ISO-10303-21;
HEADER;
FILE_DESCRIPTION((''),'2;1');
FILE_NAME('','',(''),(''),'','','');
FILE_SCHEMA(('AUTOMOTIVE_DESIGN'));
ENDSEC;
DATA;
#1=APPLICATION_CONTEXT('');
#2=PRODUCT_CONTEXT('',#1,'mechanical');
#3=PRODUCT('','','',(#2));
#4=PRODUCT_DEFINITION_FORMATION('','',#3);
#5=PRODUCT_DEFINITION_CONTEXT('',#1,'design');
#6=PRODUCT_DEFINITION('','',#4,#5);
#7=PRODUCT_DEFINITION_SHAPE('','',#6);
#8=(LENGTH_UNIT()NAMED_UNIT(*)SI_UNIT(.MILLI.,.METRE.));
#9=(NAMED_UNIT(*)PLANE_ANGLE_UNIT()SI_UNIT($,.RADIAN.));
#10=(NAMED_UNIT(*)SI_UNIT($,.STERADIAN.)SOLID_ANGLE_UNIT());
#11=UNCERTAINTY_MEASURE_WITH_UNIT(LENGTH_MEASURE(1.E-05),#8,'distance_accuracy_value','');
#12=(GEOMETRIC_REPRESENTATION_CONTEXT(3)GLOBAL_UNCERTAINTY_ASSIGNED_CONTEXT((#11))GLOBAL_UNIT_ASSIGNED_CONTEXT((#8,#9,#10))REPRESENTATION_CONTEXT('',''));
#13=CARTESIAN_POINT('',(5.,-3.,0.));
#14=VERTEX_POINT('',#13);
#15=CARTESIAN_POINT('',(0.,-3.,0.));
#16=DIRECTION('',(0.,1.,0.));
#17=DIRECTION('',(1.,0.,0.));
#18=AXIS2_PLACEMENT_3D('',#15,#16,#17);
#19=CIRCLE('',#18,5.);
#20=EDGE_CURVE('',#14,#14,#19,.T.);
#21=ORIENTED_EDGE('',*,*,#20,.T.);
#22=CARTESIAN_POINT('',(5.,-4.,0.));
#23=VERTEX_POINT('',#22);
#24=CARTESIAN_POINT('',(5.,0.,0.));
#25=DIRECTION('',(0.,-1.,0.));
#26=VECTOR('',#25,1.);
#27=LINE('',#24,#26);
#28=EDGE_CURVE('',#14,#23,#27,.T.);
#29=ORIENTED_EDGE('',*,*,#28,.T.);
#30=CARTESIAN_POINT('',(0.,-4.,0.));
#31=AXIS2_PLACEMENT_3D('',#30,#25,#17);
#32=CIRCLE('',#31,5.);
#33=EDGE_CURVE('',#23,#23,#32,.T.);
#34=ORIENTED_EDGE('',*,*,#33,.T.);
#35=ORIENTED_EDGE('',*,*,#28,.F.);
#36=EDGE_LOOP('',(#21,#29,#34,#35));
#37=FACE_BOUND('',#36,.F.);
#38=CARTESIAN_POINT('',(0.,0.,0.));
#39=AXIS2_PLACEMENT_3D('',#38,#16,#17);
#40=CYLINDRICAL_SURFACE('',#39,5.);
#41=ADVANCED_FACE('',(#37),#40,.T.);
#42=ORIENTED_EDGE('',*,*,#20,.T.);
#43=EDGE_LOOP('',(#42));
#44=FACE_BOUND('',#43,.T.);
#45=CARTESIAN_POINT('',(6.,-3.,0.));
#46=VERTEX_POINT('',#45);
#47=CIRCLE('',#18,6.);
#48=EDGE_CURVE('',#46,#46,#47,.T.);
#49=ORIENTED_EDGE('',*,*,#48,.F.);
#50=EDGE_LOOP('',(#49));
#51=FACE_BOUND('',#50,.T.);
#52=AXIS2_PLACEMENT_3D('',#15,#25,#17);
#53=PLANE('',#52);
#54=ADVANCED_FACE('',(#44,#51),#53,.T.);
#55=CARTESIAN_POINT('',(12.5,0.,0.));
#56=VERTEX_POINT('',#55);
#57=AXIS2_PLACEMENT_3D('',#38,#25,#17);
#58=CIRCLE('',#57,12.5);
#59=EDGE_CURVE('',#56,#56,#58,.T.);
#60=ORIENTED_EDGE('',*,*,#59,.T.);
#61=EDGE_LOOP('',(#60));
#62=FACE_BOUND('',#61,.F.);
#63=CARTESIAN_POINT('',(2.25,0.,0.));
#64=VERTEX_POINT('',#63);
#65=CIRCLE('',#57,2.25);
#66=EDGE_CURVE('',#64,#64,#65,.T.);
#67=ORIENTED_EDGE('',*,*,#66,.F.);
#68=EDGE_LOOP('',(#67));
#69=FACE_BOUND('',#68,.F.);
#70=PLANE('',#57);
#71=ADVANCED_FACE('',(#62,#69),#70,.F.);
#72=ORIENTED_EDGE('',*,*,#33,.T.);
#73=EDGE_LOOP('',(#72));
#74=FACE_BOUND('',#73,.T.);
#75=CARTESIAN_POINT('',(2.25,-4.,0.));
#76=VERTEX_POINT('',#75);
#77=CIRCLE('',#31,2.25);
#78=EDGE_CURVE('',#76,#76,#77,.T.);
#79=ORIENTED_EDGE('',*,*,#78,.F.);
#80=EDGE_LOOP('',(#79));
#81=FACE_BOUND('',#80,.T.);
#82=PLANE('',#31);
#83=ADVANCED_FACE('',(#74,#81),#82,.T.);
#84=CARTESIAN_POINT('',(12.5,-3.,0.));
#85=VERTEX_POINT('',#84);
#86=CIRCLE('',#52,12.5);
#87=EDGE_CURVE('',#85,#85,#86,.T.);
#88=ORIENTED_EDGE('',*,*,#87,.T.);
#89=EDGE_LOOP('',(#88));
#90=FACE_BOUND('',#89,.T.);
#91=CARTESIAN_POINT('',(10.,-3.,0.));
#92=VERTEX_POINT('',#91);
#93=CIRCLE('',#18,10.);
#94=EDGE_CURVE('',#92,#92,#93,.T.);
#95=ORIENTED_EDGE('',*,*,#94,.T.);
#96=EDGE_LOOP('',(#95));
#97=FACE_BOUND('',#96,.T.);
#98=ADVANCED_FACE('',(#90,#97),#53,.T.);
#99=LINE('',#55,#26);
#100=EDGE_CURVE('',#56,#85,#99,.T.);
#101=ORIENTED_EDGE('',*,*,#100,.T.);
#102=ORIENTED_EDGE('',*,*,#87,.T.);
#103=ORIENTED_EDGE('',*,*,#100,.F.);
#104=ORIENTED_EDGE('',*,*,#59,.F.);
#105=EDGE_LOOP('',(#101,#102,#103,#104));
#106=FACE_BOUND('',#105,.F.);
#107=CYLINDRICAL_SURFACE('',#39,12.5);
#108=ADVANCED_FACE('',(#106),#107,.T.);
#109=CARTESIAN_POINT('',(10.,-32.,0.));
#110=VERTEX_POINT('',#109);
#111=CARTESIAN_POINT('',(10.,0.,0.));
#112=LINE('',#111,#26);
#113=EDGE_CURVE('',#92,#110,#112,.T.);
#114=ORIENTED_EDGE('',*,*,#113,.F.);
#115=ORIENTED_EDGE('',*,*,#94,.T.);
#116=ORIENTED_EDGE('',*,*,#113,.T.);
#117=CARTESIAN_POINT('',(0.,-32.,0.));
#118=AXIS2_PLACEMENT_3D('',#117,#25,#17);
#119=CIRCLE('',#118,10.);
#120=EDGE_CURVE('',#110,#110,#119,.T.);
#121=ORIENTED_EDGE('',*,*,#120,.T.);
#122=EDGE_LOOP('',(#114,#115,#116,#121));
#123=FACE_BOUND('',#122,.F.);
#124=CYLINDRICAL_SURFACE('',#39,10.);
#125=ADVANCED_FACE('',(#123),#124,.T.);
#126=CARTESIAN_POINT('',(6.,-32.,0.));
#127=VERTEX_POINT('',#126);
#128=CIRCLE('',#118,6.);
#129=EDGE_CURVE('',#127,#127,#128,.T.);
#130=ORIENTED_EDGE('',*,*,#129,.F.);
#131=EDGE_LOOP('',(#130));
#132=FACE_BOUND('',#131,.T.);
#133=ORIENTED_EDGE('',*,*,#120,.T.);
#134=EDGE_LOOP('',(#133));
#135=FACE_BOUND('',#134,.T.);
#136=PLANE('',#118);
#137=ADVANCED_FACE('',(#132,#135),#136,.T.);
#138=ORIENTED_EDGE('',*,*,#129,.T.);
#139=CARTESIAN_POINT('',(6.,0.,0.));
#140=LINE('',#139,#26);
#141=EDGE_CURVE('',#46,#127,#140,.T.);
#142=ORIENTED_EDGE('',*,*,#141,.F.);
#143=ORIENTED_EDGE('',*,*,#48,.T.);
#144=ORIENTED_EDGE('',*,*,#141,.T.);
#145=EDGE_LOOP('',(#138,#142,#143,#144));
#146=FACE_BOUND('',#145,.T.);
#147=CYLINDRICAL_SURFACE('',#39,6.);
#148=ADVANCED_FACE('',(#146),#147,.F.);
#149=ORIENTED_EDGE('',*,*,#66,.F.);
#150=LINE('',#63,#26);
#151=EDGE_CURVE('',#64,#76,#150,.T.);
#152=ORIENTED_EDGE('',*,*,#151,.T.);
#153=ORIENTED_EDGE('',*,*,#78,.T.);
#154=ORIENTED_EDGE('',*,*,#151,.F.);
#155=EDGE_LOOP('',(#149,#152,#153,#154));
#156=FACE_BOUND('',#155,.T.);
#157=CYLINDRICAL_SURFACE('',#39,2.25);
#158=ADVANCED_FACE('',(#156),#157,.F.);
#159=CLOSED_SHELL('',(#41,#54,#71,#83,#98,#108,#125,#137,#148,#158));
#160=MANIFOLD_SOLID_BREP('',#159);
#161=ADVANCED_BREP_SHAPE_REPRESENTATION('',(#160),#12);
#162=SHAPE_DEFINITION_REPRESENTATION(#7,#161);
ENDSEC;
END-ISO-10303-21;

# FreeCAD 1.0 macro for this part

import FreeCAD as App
import Part
import Sketcher

doc = App.newDocument("Part")
body = doc.addObject("PartDesign::Body", "Body")

sketch1 = body.newObject("Sketcher::SketchObject", "Sketch")
sketch1.AttachmentSupport = (doc.getObject("XZ_Plane"), [""])
sketch1.MapMode = "FlatFace"
sketch1.addGeometry(Part.Circle(App.Vector(0, 0, 0), App.Vector(0, 0, 1), 12.5), False)
sketch1.addGeometry(Part.Circle(App.Vector(0, 0, 0), App.Vector(0, 0, 1), 2.25), False)
sketch1.addConstraint(Sketcher.Constraint("Coincident", 0, 3, -1, 1))
sketch1.addConstraint(Sketcher.Constraint("Coincident", 1, 3, -1, 1))
sketch1.addConstraint(Sketcher.Constraint("Diameter", 0, 25.0))
sketch1.addConstraint(Sketcher.Constraint("Diameter", 1, 4.5))
pad1 = body.newObject("PartDesign::Pad", "Pad")
pad1.Profile = sketch1
pad1.Length = 3

sketch2 = body.newObject("Sketcher::SketchObject", "Sketch001")
sketch2.AttachmentSupport = (doc.getObject("XZ_Plane"), [""])
sketch2.MapMode = "FlatFace"
sketch2.addGeometry(Part.Circle(App.Vector(0, 0, 0), App.Vector(0, 0, 1), 5), False)
sketch2.addGeometry(Part.Circle(App.Vector(0, 0, 0), App.Vector(0, 0, 1), 2.25), False)
sketch2.addConstraint(Sketcher.Constraint("Coincident", 0, 3, -1, 1))
sketch2.addConstraint(Sketcher.Constraint("Coincident", 1, 3, -1, 1))
sketch2.addConstraint(Sketcher.Constraint("Diameter", 0, 10.0))
sketch2.addConstraint(Sketcher.Constraint("Diameter", 1, 4.5))
pad2 = body.newObject("PartDesign::Pad", "Pad001")
pad2.Profile = sketch2
pad2.Length = 4

sketch3 = body.newObject("Sketcher::SketchObject", "Sketch002")
sketch3.AttachmentSupport = (doc.getObject("XZ_Plane"), [""])
sketch3.MapMode = "FlatFace"
sketch3.addGeometry(Part.Circle(App.Vector(0, 0, 0), App.Vector(0, 0, 1), 10), False)
sketch3.addGeometry(Part.Circle(App.Vector(0, 0, 0), App.Vector(0, 0, 1), 6), False)
sketch3.addConstraint(Sketcher.Constraint("Coincident", 0, 3, -1, 1))
sketch3.addConstraint(Sketcher.Constraint("Coincident", 1, 3, -1, 1))
sketch3.addConstraint(Sketcher.Constraint("Diameter", 0, 20.0))
sketch3.addConstraint(Sketcher.Constraint("Diameter", 1, 12.0))
pad3 = body.newObject("PartDesign::Pad", "Pad002")
pad3.Profile = sketch3
pad3.Length = 32

doc.recompute()
